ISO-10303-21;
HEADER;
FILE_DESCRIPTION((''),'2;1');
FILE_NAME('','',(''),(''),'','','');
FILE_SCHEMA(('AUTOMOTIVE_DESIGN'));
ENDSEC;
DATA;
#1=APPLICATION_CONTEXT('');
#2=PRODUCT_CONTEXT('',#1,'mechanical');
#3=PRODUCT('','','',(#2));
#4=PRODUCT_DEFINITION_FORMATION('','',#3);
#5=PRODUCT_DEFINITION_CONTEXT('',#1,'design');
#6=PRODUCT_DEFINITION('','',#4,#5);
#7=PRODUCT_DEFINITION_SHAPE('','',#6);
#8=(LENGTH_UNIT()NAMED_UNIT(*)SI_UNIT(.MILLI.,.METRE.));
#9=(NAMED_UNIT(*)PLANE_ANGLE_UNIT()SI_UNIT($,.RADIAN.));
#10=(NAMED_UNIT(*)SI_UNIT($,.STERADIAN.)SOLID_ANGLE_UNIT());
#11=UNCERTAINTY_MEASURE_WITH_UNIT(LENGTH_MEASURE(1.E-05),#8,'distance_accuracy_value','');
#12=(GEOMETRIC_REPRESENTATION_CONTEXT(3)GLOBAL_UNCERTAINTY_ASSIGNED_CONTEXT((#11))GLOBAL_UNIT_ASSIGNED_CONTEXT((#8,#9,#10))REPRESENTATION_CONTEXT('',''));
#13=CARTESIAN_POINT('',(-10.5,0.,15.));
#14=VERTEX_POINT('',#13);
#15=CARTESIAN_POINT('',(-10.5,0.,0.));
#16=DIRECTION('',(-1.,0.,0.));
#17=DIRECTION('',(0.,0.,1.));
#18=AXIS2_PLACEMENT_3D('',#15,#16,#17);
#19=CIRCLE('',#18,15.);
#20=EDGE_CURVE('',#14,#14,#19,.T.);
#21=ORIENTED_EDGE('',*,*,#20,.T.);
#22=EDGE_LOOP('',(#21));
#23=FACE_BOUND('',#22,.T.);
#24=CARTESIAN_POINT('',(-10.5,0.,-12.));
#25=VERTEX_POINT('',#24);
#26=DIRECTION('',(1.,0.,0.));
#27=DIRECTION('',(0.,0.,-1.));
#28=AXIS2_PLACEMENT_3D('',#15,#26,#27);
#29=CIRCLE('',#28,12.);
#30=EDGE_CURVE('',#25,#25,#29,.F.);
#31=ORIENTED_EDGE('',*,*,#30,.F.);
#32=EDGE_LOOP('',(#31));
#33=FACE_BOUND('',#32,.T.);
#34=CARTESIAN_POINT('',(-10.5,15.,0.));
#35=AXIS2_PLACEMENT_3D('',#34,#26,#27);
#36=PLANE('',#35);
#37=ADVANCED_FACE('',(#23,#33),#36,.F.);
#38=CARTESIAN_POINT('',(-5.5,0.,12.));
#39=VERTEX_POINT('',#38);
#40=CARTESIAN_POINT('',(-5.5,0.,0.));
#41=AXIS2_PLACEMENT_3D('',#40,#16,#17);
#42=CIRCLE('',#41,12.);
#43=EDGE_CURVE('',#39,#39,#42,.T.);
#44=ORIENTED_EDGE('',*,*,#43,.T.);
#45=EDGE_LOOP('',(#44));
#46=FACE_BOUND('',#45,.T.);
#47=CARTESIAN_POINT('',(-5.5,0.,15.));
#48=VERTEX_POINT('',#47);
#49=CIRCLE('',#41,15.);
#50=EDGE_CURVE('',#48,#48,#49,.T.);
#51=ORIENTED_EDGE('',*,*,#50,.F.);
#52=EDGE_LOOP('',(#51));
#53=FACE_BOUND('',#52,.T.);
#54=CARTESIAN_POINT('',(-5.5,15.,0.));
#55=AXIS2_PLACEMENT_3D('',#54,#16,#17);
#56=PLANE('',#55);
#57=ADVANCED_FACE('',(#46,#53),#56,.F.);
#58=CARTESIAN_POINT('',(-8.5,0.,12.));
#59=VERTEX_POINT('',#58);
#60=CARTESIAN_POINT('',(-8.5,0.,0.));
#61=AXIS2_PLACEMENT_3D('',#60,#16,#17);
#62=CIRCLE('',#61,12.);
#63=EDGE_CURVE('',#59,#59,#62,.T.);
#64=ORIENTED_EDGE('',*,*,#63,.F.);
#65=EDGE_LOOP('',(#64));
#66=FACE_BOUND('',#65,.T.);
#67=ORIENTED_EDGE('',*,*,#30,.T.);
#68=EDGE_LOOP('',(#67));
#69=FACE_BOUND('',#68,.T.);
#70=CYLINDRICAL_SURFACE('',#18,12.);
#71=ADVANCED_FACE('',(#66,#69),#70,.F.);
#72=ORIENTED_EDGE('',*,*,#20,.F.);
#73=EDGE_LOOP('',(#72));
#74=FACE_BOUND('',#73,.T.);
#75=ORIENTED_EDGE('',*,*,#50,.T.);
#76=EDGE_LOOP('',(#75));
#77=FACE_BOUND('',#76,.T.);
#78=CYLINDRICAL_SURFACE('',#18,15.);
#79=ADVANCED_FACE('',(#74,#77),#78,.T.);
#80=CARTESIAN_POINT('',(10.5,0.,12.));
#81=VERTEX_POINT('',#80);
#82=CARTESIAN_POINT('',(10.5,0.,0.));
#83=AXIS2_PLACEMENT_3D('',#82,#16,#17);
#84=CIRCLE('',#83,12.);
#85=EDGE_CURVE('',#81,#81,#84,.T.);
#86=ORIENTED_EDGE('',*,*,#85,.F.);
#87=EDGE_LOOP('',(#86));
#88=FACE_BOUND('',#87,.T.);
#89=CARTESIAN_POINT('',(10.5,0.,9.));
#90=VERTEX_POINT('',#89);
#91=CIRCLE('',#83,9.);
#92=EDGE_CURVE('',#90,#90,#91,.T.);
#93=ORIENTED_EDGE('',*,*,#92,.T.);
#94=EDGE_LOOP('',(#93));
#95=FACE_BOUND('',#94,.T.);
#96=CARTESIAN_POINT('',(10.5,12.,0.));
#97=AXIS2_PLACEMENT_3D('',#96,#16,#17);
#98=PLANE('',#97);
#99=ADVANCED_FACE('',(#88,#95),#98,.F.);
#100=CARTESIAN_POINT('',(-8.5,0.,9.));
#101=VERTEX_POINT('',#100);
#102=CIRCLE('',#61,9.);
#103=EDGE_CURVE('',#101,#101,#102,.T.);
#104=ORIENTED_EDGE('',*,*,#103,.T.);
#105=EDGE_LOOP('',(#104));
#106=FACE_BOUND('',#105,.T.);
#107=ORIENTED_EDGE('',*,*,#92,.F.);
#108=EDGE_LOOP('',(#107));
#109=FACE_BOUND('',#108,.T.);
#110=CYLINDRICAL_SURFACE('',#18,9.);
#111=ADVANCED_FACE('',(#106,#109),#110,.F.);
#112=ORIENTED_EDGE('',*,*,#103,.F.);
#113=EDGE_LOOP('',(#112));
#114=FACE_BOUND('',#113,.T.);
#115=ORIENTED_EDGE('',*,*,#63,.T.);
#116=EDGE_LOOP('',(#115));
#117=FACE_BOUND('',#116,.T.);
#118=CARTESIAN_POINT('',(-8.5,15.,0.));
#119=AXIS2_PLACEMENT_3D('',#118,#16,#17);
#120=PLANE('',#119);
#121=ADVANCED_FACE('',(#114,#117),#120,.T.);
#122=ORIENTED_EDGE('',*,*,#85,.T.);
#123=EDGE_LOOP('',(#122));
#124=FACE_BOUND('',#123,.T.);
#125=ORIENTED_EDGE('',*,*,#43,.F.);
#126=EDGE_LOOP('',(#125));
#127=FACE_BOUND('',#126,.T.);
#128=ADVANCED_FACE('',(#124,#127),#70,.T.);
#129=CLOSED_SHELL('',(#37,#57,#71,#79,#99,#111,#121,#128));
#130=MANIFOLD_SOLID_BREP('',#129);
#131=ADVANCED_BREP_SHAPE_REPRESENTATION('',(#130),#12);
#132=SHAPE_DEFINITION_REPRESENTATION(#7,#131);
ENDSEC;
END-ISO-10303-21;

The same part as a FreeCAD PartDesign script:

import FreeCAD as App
import Part
import Sketcher
from FreeCAD import Vector


def faces_at(feature, points):
    """Names of the faces that lie closest to the given points."""
    faces = feature.Shape.Faces
    near = lambda p: min(range(len(faces)), key=lambda i: faces[i].distToShape(Part.Vertex(*p))[0])
    return sorted({f"Face{near(p) + 1}" for p in points})


def add_polygon(sketch, points):
    """Adds a closed chain of lines whose ends are joined by coincident constraints."""
    first, n = sketch.GeometryCount, len(points)
    for a, b in zip(points, points[1:] + points[:1]):
        sketch.addGeometry(Part.LineSegment(App.Vector(*a, 0), App.Vector(*b, 0)), False)
    for i in range(n):
        sketch.addConstraint(Sketcher.Constraint("Coincident", first + i, 2, first + (i + 1) % n, 1))

doc = App.newDocument("Part")
body = doc.addObject("PartDesign::Body", "Body")

# Sketch on XY plane
sketch1 = doc.addObject("Sketcher::SketchObject", "Sketch")
body.addObject(sketch1)
sketch1.AttachmentSupport = (doc.XY_Plane, [""])
sketch1.MapMode = "FlatFace"
add_polygon(sketch1, [(-10.5, 0), (10.5, 0), (10.5, 12), (-5.5, 12), (-5.5, 15), (-10.5, 15)])  # lines 0-5
sketch1.addConstraint(Sketcher.Constraint("Horizontal", 0))
sketch1.addConstraint(Sketcher.Constraint("Vertical", 1))
sketch1.addConstraint(Sketcher.Constraint("Horizontal", 2))
sketch1.addConstraint(Sketcher.Constraint("Vertical", 3))
sketch1.addConstraint(Sketcher.Constraint("Horizontal", 4))
sketch1.addConstraint(Sketcher.Constraint("Vertical", 5))
sketch1.addConstraint(Sketcher.Constraint("Symmetric", 0, 2, 5, 2, -1, 1))
sketch1.addConstraint(Sketcher.Constraint("DistanceX", 0, 1, 0, 2, 21.0))
sketch1.addConstraint(Sketcher.Constraint("DistanceX", 2, 2, 2, 1, 16.0))
sketch1.addConstraint(Sketcher.Constraint("DistanceY", 1, 1, 1, 2, 12.0))
sketch1.addConstraint(Sketcher.Constraint("DistanceY", 3, 1, 3, 2, 3.0))
revolution = doc.addObject("PartDesign::Revolution", "Revolution")
body.addObject(revolution)
revolution.Profile = sketch1
revolution.ReferenceAxis = (sketch1, ["H_Axis"])
revolution.Angle = 360
doc.recompute()

thickness = doc.addObject("PartDesign::Thickness", "Thickness")
body.addObject(thickness)
thickness.Base = (revolution, faces_at(revolution, [(10.5, 0, 0), (-10.5, 0, 0)]))
thickness.Value = 3
thickness.Reversed = True
thickness.Join = "Intersection"

doc.recompute()
